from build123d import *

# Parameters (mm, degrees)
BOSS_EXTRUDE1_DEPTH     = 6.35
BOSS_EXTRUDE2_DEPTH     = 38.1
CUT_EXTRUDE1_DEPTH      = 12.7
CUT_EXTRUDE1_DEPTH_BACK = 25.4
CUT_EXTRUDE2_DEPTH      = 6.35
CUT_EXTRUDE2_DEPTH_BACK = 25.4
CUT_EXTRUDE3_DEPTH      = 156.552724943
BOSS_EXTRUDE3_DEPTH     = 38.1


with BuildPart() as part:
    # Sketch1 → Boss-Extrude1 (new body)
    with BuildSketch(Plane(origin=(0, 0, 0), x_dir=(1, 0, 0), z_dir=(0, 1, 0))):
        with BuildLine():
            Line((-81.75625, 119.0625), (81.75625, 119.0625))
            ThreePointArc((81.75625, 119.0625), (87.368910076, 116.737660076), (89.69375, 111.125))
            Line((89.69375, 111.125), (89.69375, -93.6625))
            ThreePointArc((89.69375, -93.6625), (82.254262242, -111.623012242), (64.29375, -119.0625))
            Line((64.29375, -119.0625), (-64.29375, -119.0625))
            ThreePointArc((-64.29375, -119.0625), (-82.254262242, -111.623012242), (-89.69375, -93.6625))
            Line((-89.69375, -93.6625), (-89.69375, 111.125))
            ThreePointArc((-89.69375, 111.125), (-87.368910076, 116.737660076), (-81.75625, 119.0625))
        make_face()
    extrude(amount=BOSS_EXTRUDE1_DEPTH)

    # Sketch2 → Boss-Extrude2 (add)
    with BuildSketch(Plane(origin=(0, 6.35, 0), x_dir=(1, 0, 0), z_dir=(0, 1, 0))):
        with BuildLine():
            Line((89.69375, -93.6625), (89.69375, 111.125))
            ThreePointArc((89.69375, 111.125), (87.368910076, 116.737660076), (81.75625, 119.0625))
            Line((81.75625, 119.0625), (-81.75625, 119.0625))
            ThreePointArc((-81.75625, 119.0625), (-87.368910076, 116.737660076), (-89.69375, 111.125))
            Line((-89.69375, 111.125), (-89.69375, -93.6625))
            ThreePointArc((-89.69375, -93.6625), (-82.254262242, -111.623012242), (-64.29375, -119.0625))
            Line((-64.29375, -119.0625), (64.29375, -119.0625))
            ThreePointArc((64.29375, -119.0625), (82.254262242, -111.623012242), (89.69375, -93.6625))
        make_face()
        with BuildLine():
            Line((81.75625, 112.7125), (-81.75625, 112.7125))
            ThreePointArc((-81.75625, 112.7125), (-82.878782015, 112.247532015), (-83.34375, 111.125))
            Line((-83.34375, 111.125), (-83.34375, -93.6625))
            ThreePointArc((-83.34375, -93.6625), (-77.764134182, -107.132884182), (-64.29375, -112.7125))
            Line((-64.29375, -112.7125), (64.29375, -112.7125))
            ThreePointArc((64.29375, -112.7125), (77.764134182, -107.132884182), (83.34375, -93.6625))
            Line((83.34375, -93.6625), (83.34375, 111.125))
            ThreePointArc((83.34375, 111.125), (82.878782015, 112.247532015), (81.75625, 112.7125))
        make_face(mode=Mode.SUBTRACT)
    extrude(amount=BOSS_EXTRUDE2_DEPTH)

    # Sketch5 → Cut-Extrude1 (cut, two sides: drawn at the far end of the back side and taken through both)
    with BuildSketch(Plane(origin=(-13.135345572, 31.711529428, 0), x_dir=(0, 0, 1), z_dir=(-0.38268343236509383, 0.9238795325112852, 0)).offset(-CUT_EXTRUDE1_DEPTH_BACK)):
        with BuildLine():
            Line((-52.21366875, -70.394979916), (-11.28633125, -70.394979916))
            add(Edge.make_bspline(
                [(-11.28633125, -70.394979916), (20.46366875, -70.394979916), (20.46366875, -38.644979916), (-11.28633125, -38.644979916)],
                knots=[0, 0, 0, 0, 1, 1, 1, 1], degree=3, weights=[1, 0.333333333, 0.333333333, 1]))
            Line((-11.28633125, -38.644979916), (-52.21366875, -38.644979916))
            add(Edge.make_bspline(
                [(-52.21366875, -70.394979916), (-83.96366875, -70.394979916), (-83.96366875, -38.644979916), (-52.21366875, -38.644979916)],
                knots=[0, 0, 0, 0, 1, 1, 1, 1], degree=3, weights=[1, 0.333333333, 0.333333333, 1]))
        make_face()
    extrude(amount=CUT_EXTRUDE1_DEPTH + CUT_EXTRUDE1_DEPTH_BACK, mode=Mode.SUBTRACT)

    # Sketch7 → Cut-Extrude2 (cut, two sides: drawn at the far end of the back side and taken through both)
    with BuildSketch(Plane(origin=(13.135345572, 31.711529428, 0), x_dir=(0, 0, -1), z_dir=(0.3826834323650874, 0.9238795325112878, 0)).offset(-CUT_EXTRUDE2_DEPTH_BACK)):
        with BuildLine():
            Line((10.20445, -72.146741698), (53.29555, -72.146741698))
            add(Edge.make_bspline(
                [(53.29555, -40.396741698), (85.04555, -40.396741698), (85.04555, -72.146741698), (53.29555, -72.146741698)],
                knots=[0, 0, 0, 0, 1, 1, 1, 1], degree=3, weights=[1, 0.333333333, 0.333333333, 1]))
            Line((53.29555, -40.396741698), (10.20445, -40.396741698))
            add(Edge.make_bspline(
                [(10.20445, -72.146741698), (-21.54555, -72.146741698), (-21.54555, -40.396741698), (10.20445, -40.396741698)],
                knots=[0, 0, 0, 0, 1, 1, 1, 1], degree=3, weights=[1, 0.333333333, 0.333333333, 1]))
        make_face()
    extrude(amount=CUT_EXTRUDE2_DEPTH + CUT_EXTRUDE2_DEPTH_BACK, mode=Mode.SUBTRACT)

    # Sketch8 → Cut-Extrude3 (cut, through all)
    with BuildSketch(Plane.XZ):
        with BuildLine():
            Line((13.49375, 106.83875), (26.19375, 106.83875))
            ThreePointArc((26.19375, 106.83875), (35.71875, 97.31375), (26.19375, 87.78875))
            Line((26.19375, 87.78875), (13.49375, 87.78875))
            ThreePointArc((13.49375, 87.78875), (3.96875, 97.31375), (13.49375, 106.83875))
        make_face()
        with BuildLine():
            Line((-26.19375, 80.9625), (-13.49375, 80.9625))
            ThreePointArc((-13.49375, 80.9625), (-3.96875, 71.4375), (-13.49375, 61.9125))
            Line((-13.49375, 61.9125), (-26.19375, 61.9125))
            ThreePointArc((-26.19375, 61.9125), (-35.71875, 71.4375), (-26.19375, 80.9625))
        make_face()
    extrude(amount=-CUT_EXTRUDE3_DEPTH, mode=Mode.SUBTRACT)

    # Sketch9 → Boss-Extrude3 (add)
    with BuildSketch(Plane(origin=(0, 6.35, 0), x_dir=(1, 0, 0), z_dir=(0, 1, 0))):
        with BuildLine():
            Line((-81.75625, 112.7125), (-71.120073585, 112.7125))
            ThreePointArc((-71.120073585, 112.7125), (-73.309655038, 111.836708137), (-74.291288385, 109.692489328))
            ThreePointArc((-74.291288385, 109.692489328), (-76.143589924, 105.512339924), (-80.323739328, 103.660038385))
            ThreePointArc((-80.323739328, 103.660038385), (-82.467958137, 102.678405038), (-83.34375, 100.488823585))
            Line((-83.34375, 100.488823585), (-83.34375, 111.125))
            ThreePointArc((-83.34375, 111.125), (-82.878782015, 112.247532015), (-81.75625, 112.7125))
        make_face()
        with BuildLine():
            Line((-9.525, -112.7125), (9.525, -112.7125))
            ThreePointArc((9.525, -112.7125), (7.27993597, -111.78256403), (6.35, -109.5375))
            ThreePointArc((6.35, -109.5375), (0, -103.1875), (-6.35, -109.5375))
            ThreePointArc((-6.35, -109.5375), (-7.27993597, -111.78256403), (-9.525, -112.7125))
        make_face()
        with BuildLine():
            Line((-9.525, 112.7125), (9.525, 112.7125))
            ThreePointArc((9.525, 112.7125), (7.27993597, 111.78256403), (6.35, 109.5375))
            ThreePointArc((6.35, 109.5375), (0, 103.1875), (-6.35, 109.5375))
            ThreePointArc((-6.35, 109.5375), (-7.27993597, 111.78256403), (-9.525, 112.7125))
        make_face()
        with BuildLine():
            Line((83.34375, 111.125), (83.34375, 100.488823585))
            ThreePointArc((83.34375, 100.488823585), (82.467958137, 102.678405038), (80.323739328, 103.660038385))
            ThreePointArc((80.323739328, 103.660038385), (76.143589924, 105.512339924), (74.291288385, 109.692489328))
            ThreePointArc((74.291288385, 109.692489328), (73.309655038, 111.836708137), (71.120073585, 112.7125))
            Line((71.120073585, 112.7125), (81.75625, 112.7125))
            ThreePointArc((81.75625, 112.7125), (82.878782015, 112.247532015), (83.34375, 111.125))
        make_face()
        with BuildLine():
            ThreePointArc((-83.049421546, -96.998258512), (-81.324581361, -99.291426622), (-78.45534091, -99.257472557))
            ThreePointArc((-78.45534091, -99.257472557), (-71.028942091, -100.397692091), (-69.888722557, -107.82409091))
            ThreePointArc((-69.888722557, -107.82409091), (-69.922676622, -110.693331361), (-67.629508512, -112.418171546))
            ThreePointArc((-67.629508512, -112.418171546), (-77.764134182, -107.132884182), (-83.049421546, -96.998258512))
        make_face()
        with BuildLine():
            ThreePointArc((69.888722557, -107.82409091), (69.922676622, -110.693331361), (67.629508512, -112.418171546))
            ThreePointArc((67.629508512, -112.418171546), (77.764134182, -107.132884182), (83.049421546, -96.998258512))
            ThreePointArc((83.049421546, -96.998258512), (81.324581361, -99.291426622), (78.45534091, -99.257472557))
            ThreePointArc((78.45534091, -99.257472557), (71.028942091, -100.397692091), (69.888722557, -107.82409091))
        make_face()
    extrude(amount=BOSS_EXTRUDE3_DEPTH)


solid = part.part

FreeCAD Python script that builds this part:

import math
import FreeCAD as App
import Part
import Sketcher

V = App.Vector
Q = App.Units.Quantity

doc = App.newDocument("Part")
body = doc.addObject("PartDesign::Body", "Body")

# Sketch on XZ plane
sketch1 = body.newObject("Sketcher::SketchObject", "Sketch")
sketch1.AttachmentSupport = (doc.getObject("XZ_Plane"), [""])
sketch1.MapMode = "FlatFace"
sketch1.addGeometry([
    Part.LineSegment(V(82, -119, 0), V(-82, -119, 0)),  # 0
    Part.ArcOfCircle(Part.Circle(V(-82, -111, 0), V(0, 0, 1), 8), math.radians(180), math.radians(270)),  # 1
    Part.LineSegment(V(-90, -111, 0), V(-90, 94, 0)),  # 2
    Part.ArcOfCircle(Part.Circle(V(-64, 94, 0), V(0, 0, 1), 25), math.radians(90), math.radians(180)),  # 3
    Part.LineSegment(V(-64, 119, 0), V(64, 119, 0)),  # 4
    Part.ArcOfCircle(Part.Circle(V(64, 94, 0), V(0, 0, 1), 25), math.radians(0), math.radians(90)),  # 5
    Part.LineSegment(V(90, 94, 0), V(90, -111, 0)),  # 6
    Part.ArcOfCircle(Part.Circle(V(82, -111, 0), V(0, 0, 1), 8), math.radians(-90), math.radians(0)),  # 7
], False)
sketch1.addConstraint([
    Sketcher.Constraint("Tangent", 0, 2, 1, 2),
    Sketcher.Constraint("Tangent", 1, 1, 2, 1),
    Sketcher.Constraint("Tangent", 2, 2, 3, 2),
    Sketcher.Constraint("Tangent", 3, 1, 4, 1),
    Sketcher.Constraint("Tangent", 4, 2, 5, 2),
    Sketcher.Constraint("Tangent", 5, 1, 6, 1),
    Sketcher.Constraint("Tangent", 6, 2, 7, 2),
    Sketcher.Constraint("Tangent", 7, 1, 0, 1),
    Sketcher.Constraint("Horizontal", 0),
    Sketcher.Constraint("Vertical", 2),
    Sketcher.Constraint("Horizontal", 4),
    Sketcher.Constraint("Vertical", 6),
    Sketcher.Constraint("Equal", 3, 5),
    Sketcher.Constraint("Equal", 1, 7),
    Sketcher.Constraint("Radius", 3, Q("1 in")),
    Sketcher.Constraint("Radius", 1, Q("0.3125 in")),
    Sketcher.Constraint("DistanceX", 0, 2, 0, 1, Q("6.4375 in")),
    Sketcher.Constraint("DistanceY", 2, 1, 2, 2, Q("8.0625 in")),
    Sketcher.Constraint("DistanceX", 1, 3, -1, 1, Q("3.21875 in")),
    Sketcher.Constraint("DistanceY", 1, 3, -1, 1, Q("4.375 in")),
])
pad1 = body.newObject("PartDesign::Pad", "Pad")
pad1.Profile = sketch1
pad1.Length = Q("0.25 in")
pad1.Reversed = True

# Sketch on XZ plane
sketch2 = body.newObject("Sketcher::SketchObject", "Sketch001")
sketch2.AttachmentSupport = (doc.getObject("XZ_Plane"), [""])
sketch2.MapMode = "FlatFace"
sketch2.AttachmentOffset = App.Placement(V(0, 0, -0.25 * 25.4), App.Rotation())
sketch2.addGeometry([
    Part.LineSegment(V(89.7, 93.7, 0), V(89.7, -111.1, 0)),  # 0
    Part.ArcOfCircle(Part.Circle(V(81.8, -111.1, 0), V(0, 0, 1), 7.9), math.radians(-90), math.radians(0)),  # 1
    Part.LineSegment(V(81.8, -119.1, 0), V(-81.8, -119.1, 0)),  # 2
    Part.ArcOfCircle(Part.Circle(V(-81.8, -111.1, 0), V(0, 0, 1), 7.9), math.radians(180), math.radians(270)),  # 3
    Part.LineSegment(V(-89.7, -111.1, 0), V(-89.7, 93.7, 0)),  # 4
    Part.ArcOfCircle(Part.Circle(V(-64.3, 93.7, 0), V(0, 0, 1), 25.4), math.radians(90), math.radians(180)),  # 5
    Part.LineSegment(V(-64.3, 119.1, 0), V(64.3, 119.1, 0)),  # 6
    Part.ArcOfCircle(Part.Circle(V(64.3, 93.7, 0), V(0, 0, 1), 25.4), math.radians(0), math.radians(90)),  # 7
    Part.LineSegment(V(-81.8, -112.7, 0), V(81.8, -112.7, 0)),  # 8
    Part.ArcOfCircle(Part.Circle(V(81.8, -111.1, 0), V(0, 0, 1), 1.6), math.radians(-90), math.radians(0)),  # 9
    Part.LineSegment(V(83.3, -111.1, 0), V(83.3, 93.7, 0)),  # 10
    Part.ArcOfCircle(Part.Circle(V(64.3, 93.7, 0), V(0, 0, 1), 19), math.radians(0), math.radians(90)),  # 11
    Part.LineSegment(V(64.3, 112.7, 0), V(-64.3, 112.7, 0)),  # 12
    Part.ArcOfCircle(Part.Circle(V(-64.3, 93.7, 0), V(0, 0, 1), 19), math.radians(90), math.radians(180)),  # 13
    Part.LineSegment(V(-83.3, 93.7, 0), V(-83.3, -111.1, 0)),  # 14
    Part.ArcOfCircle(Part.Circle(V(-81.8, -111.1, 0), V(0, 0, 1), 1.6), math.radians(180), math.radians(270)),  # 15
], False)
sketch2.addConstraint([
    Sketcher.Constraint("Tangent", 0, 2, 1, 2),
    Sketcher.Constraint("Tangent", 1, 1, 2, 1),
    Sketcher.Constraint("Tangent", 2, 2, 3, 2),
    Sketcher.Constraint("Tangent", 3, 1, 4, 1),
    Sketcher.Constraint("Tangent", 4, 2, 5, 2),
    Sketcher.Constraint("Tangent", 5, 1, 6, 1),
    Sketcher.Constraint("Tangent", 6, 2, 7, 2),
    Sketcher.Constraint("Tangent", 7, 1, 0, 1),
    Sketcher.Constraint("Tangent", 8, 2, 9, 1),
    Sketcher.Constraint("Tangent", 9, 2, 10, 1),
    Sketcher.Constraint("Tangent", 10, 2, 11, 1),
    Sketcher.Constraint("Tangent", 11, 2, 12, 1),
    Sketcher.Constraint("Tangent", 12, 2, 13, 1),
    Sketcher.Constraint("Tangent", 13, 2, 14, 1),
    Sketcher.Constraint("Tangent", 14, 2, 15, 1),
    Sketcher.Constraint("Tangent", 15, 2, 8, 1),
    Sketcher.Constraint("Vertical", 0),
    Sketcher.Constraint("Horizontal", 2),
    Sketcher.Constraint("Vertical", 4),
    Sketcher.Constraint("Horizontal", 6),
    Sketcher.Constraint("Horizontal", 8),
    Sketcher.Constraint("Vertical", 10),
    Sketcher.Constraint("Horizontal", 12),
    Sketcher.Constraint("Vertical", 14),
    Sketcher.Constraint("Coincident", 9, 3, 1, 3),
    Sketcher.Constraint("Coincident", 11, 3, 7, 3),
    Sketcher.Constraint("Coincident", 13, 3, 5, 3),
    Sketcher.Constraint("Equal", 1, 3),
    Sketcher.Constraint("Equal", 5, 7),
    Sketcher.Constraint("Equal", 9, 15),
    Sketcher.Constraint("Radius", 5, Q("1 in")),
    Sketcher.Constraint("Radius", 11, Q("0.75 in")),
    Sketcher.Constraint("Radius", 1, Q("0.3125 in")),
    Sketcher.Constraint("DistanceX", 14, 2, 9, 3, Q("6.5 in")),
    Sketcher.Constraint("DistanceY", 0, 2, 0, 1, Q("8.0625 in")),
    Sketcher.Constraint("DistanceX", -1, 1, 1, 3, Q("3.21875 in")),
    Sketcher.Constraint("DistanceY", 1, 3, -1, 1, Q("4.375 in")),
])
pad2 = body.newObject("PartDesign::Pad", "Pad001")
pad2.Profile = sketch2
pad2.Length = Q("1.5 in")
pad2.Reversed = True

# Sketch on an angled plane
sketch3 = body.newObject("Sketcher::SketchObject", "Sketch002")
sketch3.Placement = App.Placement(V(-13.135346, 31.711529, 0), App.Rotation(V(0, 0, 1), V(0.923879533, 0.382683432, 0), V(-0.382683432, 0.923879533, 0), "ZXY"))
sketch3.addGeometry([
    Part.LineSegment(V(-52.213669, -70.39498, 0), V(-11.286331, -70.39498, 0)),
    Part.BSplineCurve([V(-11.286331, -70.39498, 0), V(20.463669, -70.39498, 0), V(20.463669, -38.64498, 0), V(-11.286331, -38.64498, 0)], [4, 4], [0, 1], False, 3, [1, 0.333333333, 0.333333333, 1], False),
    Part.LineSegment(V(-11.286331, -38.64498, 0), V(-52.213669, -38.64498, 0)),
    Part.BSplineCurve([V(-52.213669, -70.39498, 0), V(-83.963669, -70.39498, 0), V(-83.963669, -38.64498, 0), V(-52.213669, -38.64498, 0)], [4, 4], [0, 1], False, 3, [1, 0.333333333, 0.333333333, 1], False),
], False)
sketch3.addConstraint([
    Sketcher.Constraint("Block", 1),
    Sketcher.Constraint("Block", 3),
    Sketcher.Constraint("Coincident", 0, 2, 1, 1),
    Sketcher.Constraint("Coincident", 1, 2, 2, 1),
    Sketcher.Constraint("Coincident", 2, 2, 3, 2),
    Sketcher.Constraint("Coincident", 3, 1, 0, 1),
])
pocket1 = body.newObject("PartDesign::Pocket", "Pocket")
pocket1.Profile = sketch3
pocket1.Type = "TwoLengths"
pocket1.Length = Q("0.5 in")
pocket1.Length2 = Q("1 in")
pocket1.Reversed = True

# Sketch on an angled plane
sketch4 = body.newObject("Sketcher::SketchObject", "Sketch003")
sketch4.Placement = App.Placement(V(13.135346, 31.711529, 0), App.Rotation(V(0, 0, -1), V(-0.923879533, 0.382683432, 0), V(0.382683432, 0.923879533, 0), "ZXY"))
sketch4.addGeometry([
    Part.LineSegment(V(10.20445, -72.146742, 0), V(53.29555, -72.146742, 0)),
    Part.BSplineCurve([V(53.29555, -40.396742, 0), V(85.04555, -40.396742, 0), V(85.04555, -72.146742, 0), V(53.29555, -72.146742, 0)], [4, 4], [0, 1], False, 3, [1, 0.333333333, 0.333333333, 1], False),
    Part.LineSegment(V(53.29555, -40.396742, 0), V(10.20445, -40.396742, 0)),
    Part.BSplineCurve([V(10.20445, -72.146742, 0), V(-21.54555, -72.146742, 0), V(-21.54555, -40.396742, 0), V(10.20445, -40.396742, 0)], [4, 4], [0, 1], False, 3, [1, 0.333333333, 0.333333333, 1], False),
], False)
sketch4.addConstraint([
    Sketcher.Constraint("Block", 1),
    Sketcher.Constraint("Block", 3),
    Sketcher.Constraint("Coincident", 0, 2, 1, 2),
    Sketcher.Constraint("Coincident", 1, 1, 2, 1),
    Sketcher.Constraint("Coincident", 2, 2, 3, 2),
    Sketcher.Constraint("Coincident", 3, 1, 0, 1),
])
pocket2 = body.newObject("PartDesign::Pocket", "Pocket001")
pocket2.Profile = sketch4
pocket2.Type = "TwoLengths"
pocket2.Length = Q("0.25 in")
pocket2.Length2 = Q("1 in")
pocket2.Reversed = True

# Sketch on XZ plane
sketch5 = body.newObject("Sketcher::SketchObject", "Sketch004")
sketch5.AttachmentSupport = (doc.getObject("XZ_Plane"), [""])
sketch5.MapMode = "FlatFace"
sketch5.addGeometry([
    Part.LineSegment(V(26, 107, 0), V(13, 107, 0)),  # 0
    Part.ArcOfCircle(Part.Circle(V(13, 97, 0), V(0, 0, 1), 10), math.radians(90), math.radians(270)),  # 1
    Part.LineSegment(V(13, 88, 0), V(26, 88, 0)),  # 2
    Part.ArcOfCircle(Part.Circle(V(26, 97, 0), V(0, 0, 1), 10), math.radians(-90), math.radians(90)),  # 3
    Part.LineSegment(V(-13, 81, 0), V(-26, 81, 0)),  # 4
    Part.ArcOfCircle(Part.Circle(V(-26, 71, 0), V(0, 0, 1), 10), math.radians(90), math.radians(270)),  # 5
    Part.LineSegment(V(-26, 62, 0), V(-13, 62, 0)),  # 6
    Part.ArcOfCircle(Part.Circle(V(-13, 71, 0), V(0, 0, 1), 10), math.radians(-90), math.radians(90)),  # 7
], False)
sketch5.addConstraint([
    Sketcher.Constraint("Tangent", 0, 2, 1, 1),
    Sketcher.Constraint("Tangent", 1, 2, 2, 1),
    Sketcher.Constraint("Tangent", 2, 2, 3, 1),
    Sketcher.Constraint("Tangent", 3, 2, 0, 1),
    Sketcher.Constraint("Tangent", 4, 2, 5, 1),
    Sketcher.Constraint("Tangent", 5, 2, 6, 1),
    Sketcher.Constraint("Tangent", 6, 2, 7, 1),
    Sketcher.Constraint("Tangent", 7, 2, 4, 1),
    Sketcher.Constraint("Horizontal", 0),
    Sketcher.Constraint("Horizontal", 2),
    Sketcher.Constraint("Horizontal", 4),
    Sketcher.Constraint("Horizontal", 6),
    Sketcher.Constraint("Equal", 3, 5),
    Sketcher.Constraint("Equal", 2, 4),
    Sketcher.Constraint("DistanceX", 0, 2, 0, 1, Q("0.5 in")),
    Sketcher.Constraint("Radius", 1, Q("0.375 in")),
    Sketcher.Constraint("DistanceX", -1, 1, 1, 3, Q("0.53125 in")),
    Sketcher.Constraint("DistanceX", 5, 3, -1, 1, Q("1.03125 in")),
    Sketcher.Constraint("DistanceY", -1, 1, 5, 3, Q("2.8125 in")),
    Sketcher.Constraint("DistanceY", -1, 1, 1, 3, Q("97.31375 mm")),
])
pocket3 = body.newObject("PartDesign::Pocket", "Pocket002")
pocket3.Profile = sketch5
pocket3.Type = "ThroughAll"

# Sketch on XZ plane
sketch6 = body.newObject("Sketcher::SketchObject", "Sketch005")
sketch6.AttachmentSupport = (doc.getObject("XZ_Plane"), [""])
sketch6.MapMode = "FlatFace"
sketch6.AttachmentOffset = App.Placement(V(0, 0, -0.25 * 25.4), App.Rotation())
sketch6.addGeometry([
    Part.LineSegment(V(-71.1, -112.7, 0), V(-81.8, -112.7, 0)),  # 0
    Part.ArcOfCircle(Part.Circle(V(-81.8, -111.1, 0), V(0, 0, 1), 1.6), math.radians(180), math.radians(270)),  # 1
    Part.LineSegment(V(-83.3, -111.1, 0), V(-83.3, -100.5, 0)),  # 2
    Part.ArcOfCircle(Part.Circle(V(-80.2, -100.5, 0), V(0, 0, 1), 3.2), math.radians(-180), math.radians(-93)),  # 3
    Part.ArcOfCircle(Part.Circle(V(-80.6, -110, 0), V(0, 0, 1), 6.3), math.radians(3), math.radians(87)),  # 4
    Part.ArcOfCircle(Part.Circle(V(-71.1, -109.5, 0), V(0, 0, 1), 3.2), math.radians(-177), math.radians(-90)),  # 5
    Part.LineSegment(V(-9.5, 112.7, 0), V(9.5, 112.7, 0)),  # 6
    Part.ArcOfCircle(Part.Circle(V(9.5, 109.5, 0), V(0, 0, 1), 3.2), math.radians(90), math.radians(180)),  # 7
    Part.ArcOfCircle(Part.Circle(V(0, 109.5, 0), V(0, 0, 1), 6.3), math.radians(180), math.radians(360)),  # 8
    Part.ArcOfCircle(Part.Circle(V(-9.5, 109.5, 0), V(0, 0, 1), 3.2), math.radians(0), math.radians(90)),  # 9
    Part.LineSegment(V(9.5, -112.7, 0), V(-9.5, -112.7, 0)),  # 10
    Part.ArcOfCircle(Part.Circle(V(-9.5, -109.5, 0), V(0, 0, 1), 3.2), math.radians(-90), math.radians(0)),  # 11
    Part.ArcOfCircle(Part.Circle(V(0, -109.5, 0), V(0, 0, 1), 6.3), math.radians(0), math.radians(180)),  # 12
    Part.ArcOfCircle(Part.Circle(V(9.5, -109.5, 0), V(0, 0, 1), 3.2), math.radians(-180), math.radians(-90)),  # 13
    Part.LineSegment(V(83.3, -100.5, 0), V(83.3, -111.1, 0)),  # 14
    Part.ArcOfCircle(Part.Circle(V(81.8, -111.1, 0), V(0, 0, 1), 1.6), math.radians(-90), math.radians(0)),  # 15
    Part.LineSegment(V(81.8, -112.7, 0), V(71.1, -112.7, 0)),  # 16
    Part.ArcOfCircle(Part.Circle(V(71.1, -109.5, 0), V(0, 0, 1), 3.2), math.radians(-90), math.radians(-3)),  # 17
    Part.ArcOfCircle(Part.Circle(V(80.6, -110, 0), V(0, 0, 1), 6.3), math.radians(93), math.radians(177)),  # 18
    Part.ArcOfCircle(Part.Circle(V(80.2, -100.5, 0), V(0, 0, 1), 3.2), math.radians(-87), math.radians(0)),  # 19
    Part.ArcOfCircle(Part.Circle(V(-79.9, 96.4, 0), V(0, 0, 1), 3.2), math.radians(62), math.radians(170)),  # 20
    Part.ArcOfCircle(Part.Circle(V(-64.3, 93.7, 0), V(0, 0, 1), 19), math.radians(100), math.radians(170)),  # 21
    Part.ArcOfCircle(Part.Circle(V(-67.1, 109.3, 0), V(0, 0, 1), 3.2), math.radians(100), math.radians(208)),  # 22
    Part.ArcOfCircle(Part.Circle(V(-75.5, 104.9, 0), V(0, 0, 1), 6.3), math.radians(-118), math.radians(28)),  # 23
    Part.ArcOfCircle(Part.Circle(V(67.1, 109.3, 0), V(0, 0, 1), 3.2), math.radians(-28), math.radians(80)),  # 24
    Part.ArcOfCircle(Part.Circle(V(64.3, 93.7, 0), V(0, 0, 1), 19), math.radians(10), math.radians(80)),  # 25
    Part.ArcOfCircle(Part.Circle(V(79.9, 96.4, 0), V(0, 0, 1), 3.2), math.radians(10), math.radians(118)),  # 26
    Part.ArcOfCircle(Part.Circle(V(75.5, 104.9, 0), V(0, 0, 1), 6.3), math.radians(152), math.radians(298)),  # 27
], False)
sketch6.addConstraint([
    Sketcher.Constraint("Tangent", 0, 2, 1, 2),
    Sketcher.Constraint("Tangent", 1, 1, 2, 1),
    Sketcher.Constraint("Tangent", 2, 2, 3, 1),
    Sketcher.Constraint("Tangent", 3, 2, 4, 2),
    Sketcher.Constraint("Tangent", 4, 1, 5, 1),
    Sketcher.Constraint("Tangent", 5, 2, 0, 1),
    Sketcher.Constraint("Tangent", 6, 2, 7, 1),
    Sketcher.Constraint("Tangent", 7, 2, 8, 2),
    Sketcher.Constraint("Tangent", 8, 1, 9, 1),
    Sketcher.Constraint("Tangent", 9, 2, 6, 1),
    Sketcher.Constraint("Tangent", 10, 2, 11, 1),
    Sketcher.Constraint("Tangent", 11, 2, 12, 2),
    Sketcher.Constraint("Tangent", 12, 1, 13, 1),
    Sketcher.Constraint("Tangent", 13, 2, 10, 1),
    Sketcher.Constraint("Tangent", 14, 2, 15, 2),
    Sketcher.Constraint("Tangent", 15, 1, 16, 1),
    Sketcher.Constraint("Tangent", 16, 2, 17, 1),
    Sketcher.Constraint("Tangent", 17, 2, 18, 2),
    Sketcher.Constraint("Tangent", 18, 1, 19, 1),
    Sketcher.Constraint("Tangent", 19, 2, 14, 1),
    Sketcher.Constraint("Tangent", 20, 2, 21, 2),
    Sketcher.Constraint("Tangent", 21, 1, 22, 1),
    Sketcher.Constraint("Tangent", 22, 2, 23, 2),
    Sketcher.Constraint("Tangent", 23, 1, 20, 1),
    Sketcher.Constraint("Tangent", 24, 2, 25, 2),
    Sketcher.Constraint("Tangent", 25, 1, 26, 1),
    Sketcher.Constraint("Tangent", 26, 2, 27, 2),
    Sketcher.Constraint("Tangent", 27, 1, 24, 1),
    Sketcher.Constraint("Horizontal", 0),
    Sketcher.Constraint("Vertical", 2),
    Sketcher.Constraint("Horizontal", 6),
    Sketcher.Constraint("Horizontal", 10),
    Sketcher.Constraint("Vertical", 14),
    Sketcher.Constraint("Horizontal", 16),
    Sketcher.Constraint("Equal", 3, 5),
    Sketcher.Constraint("Equal", 5, 7),
    Sketcher.Constraint("Equal", 4, 8),
    Sketcher.Constraint("Equal", 7, 9),
    Sketcher.Constraint("Equal", 9, 11),
    Sketcher.Constraint("Equal", 8, 12),
    Sketcher.Constraint("Equal", 11, 13),
    Sketcher.Constraint("Equal", 1, 15),
    Sketcher.Constraint("Equal", 13, 17),
    Sketcher.Constraint("Equal", 12, 18),
    Sketcher.Constraint("Equal", 17, 19),
    Sketcher.Constraint("Equal", 19, 20),
    Sketcher.Constraint("Equal", 20, 22),
    Sketcher.Constraint("Equal", 18, 23),
    Sketcher.Constraint("Equal", 22, 24),
    Sketcher.Constraint("Equal", 21, 25),
    Sketcher.Constraint("Equal", 24, 26),
    Sketcher.Constraint("Equal", 23, 27),
    Sketcher.Constraint("Symmetric", 7, 3, 11, 3, -1, 1),
    Sketcher.Constraint("Symmetric", 1, 3, 15, 3, -2),
    Sketcher.Constraint("Symmetric", 4, 3, 18, 3, -2),
    Sketcher.Constraint("Symmetric", 22, 3, 24, 3, -2),
    Sketcher.Constraint("Symmetric", 20, 3, 26, 3, -2),
    Sketcher.Constraint("Symmetric", 8, 3, 12, 3, -1),
    Sketcher.Constraint("Horizontal", 7, 3, 8, 3),
    Sketcher.Constraint("Horizontal", 5, 3, 11, 3),
    Sketcher.Constraint("Equal", 16, 2),
    Sketcher.Constraint("Radius", 4, Q("0.25 in")),
    Sketcher.Constraint("Radius", 21, Q("0.75 in")),
    Sketcher.Constraint("Radius", 1, Q("0.0625 in")),
    Sketcher.Constraint("Radius", 3, Q("0.125 in")),
    Sketcher.Constraint("DistanceY", 25, 3, 6, 2, Q("0.75 in")),
    Sketcher.Constraint("DistanceX", 1, 3, -1, 1, Q("3.21875 in")),
    Sketcher.Constraint("DistanceY", 1, 3, -1, 1, Q("4.375 in")),
    Sketcher.Constraint("DistanceX", 21, 3, -1, 1, Q("2.53125 in")),
    Sketcher.Constraint("DistanceY", -1, 1, 20, 3, Q("96.442299 mm")),
    Sketcher.Constraint("DistanceX", 22, 3, 21, 3, Q("2.779799 mm")),
    Sketcher.Constraint("DistanceX", 0, 2, 0, 1, Q("10.636176 mm")),
])
pad3 = body.newObject("PartDesign::Pad", "Pad002")
pad3.Profile = sketch6
pad3.Length = Q("1.5 in")
pad3.Reversed = True

doc.recompute()
